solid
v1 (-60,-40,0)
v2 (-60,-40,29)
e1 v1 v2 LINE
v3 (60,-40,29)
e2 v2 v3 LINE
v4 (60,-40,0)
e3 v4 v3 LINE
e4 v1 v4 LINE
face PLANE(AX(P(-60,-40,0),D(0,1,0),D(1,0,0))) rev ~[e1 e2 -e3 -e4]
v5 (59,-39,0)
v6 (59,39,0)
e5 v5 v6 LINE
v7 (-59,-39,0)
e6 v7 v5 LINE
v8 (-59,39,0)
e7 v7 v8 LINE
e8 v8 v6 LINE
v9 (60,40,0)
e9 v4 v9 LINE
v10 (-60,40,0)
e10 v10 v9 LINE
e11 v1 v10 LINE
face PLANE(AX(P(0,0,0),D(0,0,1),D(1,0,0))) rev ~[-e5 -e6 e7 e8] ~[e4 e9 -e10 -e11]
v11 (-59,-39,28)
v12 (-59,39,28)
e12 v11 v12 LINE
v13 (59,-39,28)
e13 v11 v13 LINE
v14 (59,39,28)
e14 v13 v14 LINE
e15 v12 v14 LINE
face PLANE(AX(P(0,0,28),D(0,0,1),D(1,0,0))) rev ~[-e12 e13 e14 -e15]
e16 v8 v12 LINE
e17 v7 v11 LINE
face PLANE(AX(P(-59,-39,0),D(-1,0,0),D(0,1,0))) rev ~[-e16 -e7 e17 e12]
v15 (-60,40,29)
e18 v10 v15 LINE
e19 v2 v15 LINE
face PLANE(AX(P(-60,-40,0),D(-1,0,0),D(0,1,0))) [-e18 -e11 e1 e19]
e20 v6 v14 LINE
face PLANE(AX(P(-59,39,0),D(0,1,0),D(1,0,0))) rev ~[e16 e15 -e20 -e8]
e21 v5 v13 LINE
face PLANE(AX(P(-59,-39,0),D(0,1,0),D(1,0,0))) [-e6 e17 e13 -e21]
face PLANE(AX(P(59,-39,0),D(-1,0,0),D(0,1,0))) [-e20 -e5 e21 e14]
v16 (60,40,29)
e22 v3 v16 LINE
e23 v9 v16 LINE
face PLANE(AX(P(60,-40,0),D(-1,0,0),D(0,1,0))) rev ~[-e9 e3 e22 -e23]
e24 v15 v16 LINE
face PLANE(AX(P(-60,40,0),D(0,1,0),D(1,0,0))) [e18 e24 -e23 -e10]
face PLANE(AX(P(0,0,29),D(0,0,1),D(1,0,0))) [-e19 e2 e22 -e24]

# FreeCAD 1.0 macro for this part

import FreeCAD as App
import Part
import Sketcher
Q = App.Units.Quantity

doc = App.newDocument("Part")
body = doc.addObject("PartDesign::Body", "Body")

# Sketch on XY plane
sketch1 = body.newObject("Sketcher::SketchObject", "Sketch")
sketch1.AttachmentSupport = (doc.getObject("XY_Plane"), [""])
sketch1.MapMode = "FlatFace"
sketch1.addGeometry(Part.LineSegment(App.Vector(-60, 40, 0), App.Vector(-60, -40, 0)), False)
sketch1.addGeometry(Part.LineSegment(App.Vector(-60, -40, 0), App.Vector(60, -40, 0)), False)
sketch1.addGeometry(Part.LineSegment(App.Vector(60, -40, 0), App.Vector(60, 40, 0)), False)
sketch1.addGeometry(Part.LineSegment(App.Vector(60, 40, 0), App.Vector(-60, 40, 0)), False)
sketch1.addConstraint(Sketcher.Constraint("Coincident", 0, 2, 1, 1))
sketch1.addConstraint(Sketcher.Constraint("Coincident", 1, 2, 2, 1))
sketch1.addConstraint(Sketcher.Constraint("Coincident", 2, 2, 3, 1))
sketch1.addConstraint(Sketcher.Constraint("Coincident", 3, 2, 0, 1))
sketch1.addConstraint(Sketcher.Constraint("Vertical", 0))
sketch1.addConstraint(Sketcher.Constraint("Horizontal", 1))
sketch1.addConstraint(Sketcher.Constraint("Vertical", 2))
sketch1.addConstraint(Sketcher.Constraint("Horizontal", 3))
sketch1.addConstraint(Sketcher.Constraint("Symmetric", 0, 2, 2, 2, -1, 1))
sketch1.addConstraint(Sketcher.Constraint("DistanceX", 1, 1, 1, 2, Q("120 mm")))
sketch1.addConstraint(Sketcher.Constraint("DistanceY", 0, 2, 0, 1, Q("80 mm")))
pad1 = body.newObject("PartDesign::Pad", "Pad")
pad1.Profile = sketch1
pad1.Length = 29

# Sketch on XY plane
sketch2 = body.newObject("Sketcher::SketchObject", "Sketch001")
sketch2.AttachmentSupport = (doc.getObject("XY_Plane"), [""])
sketch2.MapMode = "FlatFace"
sketch2.addGeometry(Part.LineSegment(App.Vector(-59, 39, 0), App.Vector(-59, -39, 0)), False)
sketch2.addGeometry(Part.LineSegment(App.Vector(-59, -39, 0), App.Vector(59, -39, 0)), False)
sketch2.addGeometry(Part.LineSegment(App.Vector(59, -39, 0), App.Vector(59, 39, 0)), False)
sketch2.addGeometry(Part.LineSegment(App.Vector(59, 39, 0), App.Vector(-59, 39, 0)), False)
sketch2.addConstraint(Sketcher.Constraint("Coincident", 0, 2, 1, 1))
sketch2.addConstraint(Sketcher.Constraint("Coincident", 1, 2, 2, 1))
sketch2.addConstraint(Sketcher.Constraint("Coincident", 2, 2, 3, 1))
sketch2.addConstraint(Sketcher.Constraint("Coincident", 3, 2, 0, 1))
sketch2.addConstraint(Sketcher.Constraint("Vertical", 0))
sketch2.addConstraint(Sketcher.Constraint("Horizontal", 1))
sketch2.addConstraint(Sketcher.Constraint("Vertical", 2))
sketch2.addConstraint(Sketcher.Constraint("Horizontal", 3))
sketch2.addConstraint(Sketcher.Constraint("Symmetric", 0, 2, 2, 2, -1, 1))
sketch2.addConstraint(Sketcher.Constraint("DistanceX", 1, 1, 1, 2, Q("118 mm")))
sketch2.addConstraint(Sketcher.Constraint("DistanceY", 0, 2, 0, 1, Q("78 mm")))
pocket1 = body.newObject("PartDesign::Pocket", "Pocket")
pocket1.Profile = sketch2
pocket1.Length = 28
pocket1.Reversed = True

doc.recompute()
